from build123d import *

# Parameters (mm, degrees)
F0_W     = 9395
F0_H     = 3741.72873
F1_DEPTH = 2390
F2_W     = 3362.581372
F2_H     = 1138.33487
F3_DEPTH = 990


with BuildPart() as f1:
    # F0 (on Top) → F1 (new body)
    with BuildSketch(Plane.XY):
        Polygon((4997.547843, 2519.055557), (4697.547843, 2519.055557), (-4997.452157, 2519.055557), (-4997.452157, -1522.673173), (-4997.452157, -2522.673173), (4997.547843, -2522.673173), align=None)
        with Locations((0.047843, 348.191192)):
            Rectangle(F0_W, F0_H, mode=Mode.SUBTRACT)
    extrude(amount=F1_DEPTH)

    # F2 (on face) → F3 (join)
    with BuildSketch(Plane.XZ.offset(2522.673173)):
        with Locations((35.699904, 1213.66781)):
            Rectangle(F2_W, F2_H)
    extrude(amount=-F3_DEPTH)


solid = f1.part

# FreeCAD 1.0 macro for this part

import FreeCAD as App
import Part
import Sketcher

V = App.Vector
Q = App.Units.Quantity


def add_polygon(sketch, points):
    """Adds a closed chain of lines whose ends are joined by coincident constraints."""
    first, n = sketch.GeometryCount, len(points)
    for a, b in zip(points, points[1:] + points[:1]):
        sketch.addGeometry(Part.LineSegment(App.Vector(*a, 0), App.Vector(*b, 0)), False)
    for i in range(n):
        sketch.addConstraint(Sketcher.Constraint("Coincident", first + i, 2, first + (i + 1) % n, 1))

doc = App.newDocument("Part")
body = doc.addObject("PartDesign::Body", "Body")

# Sketch on XY plane
sketch1 = body.newObject("Sketcher::SketchObject", "Sketch")
sketch1.AttachmentSupport = (doc.getObject("XY_Plane"), [""])
sketch1.MapMode = "FlatFace"
add_polygon(sketch1, [(4998, 2519), (-4997, 2519), (-4997, -2523), (4998, -2523)])  # lines 0-3
add_polygon(sketch1, [(4698, -1523), (-4697, -1523), (-4697, 2219), (4698, 2219)])  # lines 4-7
sketch1.addConstraint([
    Sketcher.Constraint("Horizontal", 0),
    Sketcher.Constraint("Vertical", 1),
    Sketcher.Constraint("Horizontal", 2),
    Sketcher.Constraint("Vertical", 3),
    Sketcher.Constraint("Horizontal", 4),
    Sketcher.Constraint("Vertical", 5),
    Sketcher.Constraint("Horizontal", 6),
    Sketcher.Constraint("Vertical", 7),
    Sketcher.Constraint("DistanceX", 0, 2, 0, 1, Q("9995 mm")),
    Sketcher.Constraint("DistanceX", 4, 2, 4, 1, Q("9395 mm")),
    Sketcher.Constraint("DistanceX", 1, 2, 4, 2, Q("300 mm")),
    Sketcher.Constraint("DistanceY", 1, 2, 4, 2, Q("1000 mm")),
    Sketcher.Constraint("DistanceY", 5, 2, 0, 2, Q("300 mm")),
    Sketcher.Constraint("DistanceY", 1, 2, 1, 1, Q("5041.72873 mm")),
    Sketcher.Constraint("DistanceX", 0, 2, -1, 1, Q("4997.452157 mm")),
    Sketcher.Constraint("DistanceY", -1, 1, 0, 2, Q("2519.055557 mm")),
])
pad1 = body.newObject("PartDesign::Pad", "Pad")
pad1.Profile = sketch1
pad1.Length = 2390

# Sketch on XZ plane
sketch2 = body.newObject("Sketcher::SketchObject", "Sketch001")
sketch2.AttachmentSupport = (doc.getObject("XZ_Plane"), [""])
sketch2.MapMode = "FlatFace"
sketch2.AttachmentOffset = App.Placement(V(0, 0, 2522.673173), App.Rotation())
add_polygon(sketch2, [(-1646, 1783), (-1646, 645), (1717, 645), (1717, 1783)])  # lines 0-3
sketch2.addConstraint([
    Sketcher.Constraint("Vertical", 0),
    Sketcher.Constraint("Horizontal", 1),
    Sketcher.Constraint("Vertical", 2),
    Sketcher.Constraint("Horizontal", 3),
    Sketcher.Constraint("DistanceY", 0, 2, 0, 1, Q("1138.33487 mm")),
    Sketcher.Constraint("DistanceX", 1, 1, 1, 2, Q("3362.581372 mm")),
    Sketcher.Constraint("DistanceX", 0, 2, -1, 1, Q("1645.590782 mm")),
    Sketcher.Constraint("DistanceY", -1, 1, 0, 2, Q("644.500375 mm")),
])
pad2 = body.newObject("PartDesign::Pad", "Pad001")
pad2.Profile = sketch2
pad2.Length = 990
pad2.Reversed = True

doc.recompute()
